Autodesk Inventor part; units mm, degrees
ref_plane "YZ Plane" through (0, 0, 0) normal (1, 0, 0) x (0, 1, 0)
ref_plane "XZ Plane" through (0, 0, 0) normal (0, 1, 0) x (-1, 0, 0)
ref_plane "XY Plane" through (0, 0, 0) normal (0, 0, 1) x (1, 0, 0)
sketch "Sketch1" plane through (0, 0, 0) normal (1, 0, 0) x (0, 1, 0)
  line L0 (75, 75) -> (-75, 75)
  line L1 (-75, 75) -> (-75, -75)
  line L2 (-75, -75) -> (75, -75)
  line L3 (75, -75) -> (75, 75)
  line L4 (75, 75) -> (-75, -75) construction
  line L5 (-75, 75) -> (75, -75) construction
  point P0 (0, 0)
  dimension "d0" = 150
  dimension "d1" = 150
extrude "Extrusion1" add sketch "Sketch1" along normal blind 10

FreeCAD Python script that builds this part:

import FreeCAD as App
import Part
import Sketcher

V = App.Vector

doc = App.newDocument("Part")
params = doc.addObject("Spreadsheet::Sheet", "Params")
for row, (alias, value) in enumerate([
    ("sketch1_width", "150 mm"),
    ("pad1_length", "10 mm"),
], start=1):
    params.set(f"A{row}", alias)
    params.set(f"B{row}", "=" + value)
    params.setAlias(f"B{row}", alias)

body = doc.addObject("PartDesign::Body", "Body")

# Sketch on YZ plane
sketch1 = doc.addObject("Sketcher::SketchObject", "Sketch")
body.addObject(sketch1)
sketch1.AttachmentSupport = (doc.YZ_Plane, [""])
sketch1.MapMode = "FlatFace"
sketch1.addGeometry(Part.LineSegment(V(75, -75, 0), V(75, 75, 0)), False)
sketch1.addGeometry(Part.LineSegment(V(75, 75, 0), V(-75, 75, 0)), False)
sketch1.addGeometry(Part.LineSegment(V(-75, 75, 0), V(-75, -75, 0)), False)
sketch1.addGeometry(Part.LineSegment(V(-75, -75, 0), V(75, -75, 0)), False)
sketch1.addConstraint(Sketcher.Constraint("Coincident", 0, 2, 1, 1))
sketch1.addConstraint(Sketcher.Constraint("Coincident", 1, 2, 2, 1))
sketch1.addConstraint(Sketcher.Constraint("Coincident", 2, 2, 3, 1))
sketch1.addConstraint(Sketcher.Constraint("Coincident", 3, 2, 0, 1))
sketch1.addConstraint(Sketcher.Constraint("Vertical", 0))
sketch1.addConstraint(Sketcher.Constraint("Horizontal", 1))
sketch1.addConstraint(Sketcher.Constraint("Vertical", 2))
sketch1.addConstraint(Sketcher.Constraint("Horizontal", 3))
sketch1.addConstraint(Sketcher.Constraint("Symmetric", 0, 2, 2, 2, -1, 1))
sketch1.addConstraint(Sketcher.Constraint("Equal", 3, 0))
sketch1.addConstraint(Sketcher.Constraint("DistanceX", 1, 2, 1, 1, 150.0))
sketch1.setExpression("Constraints[10]", "Params.sketch1_width")
pad1 = doc.addObject("PartDesign::Pad", "Pad")
body.addObject(pad1)
pad1.Profile = sketch1
pad1.setExpression("Length", "Params.pad1_length")

doc.recompute()
